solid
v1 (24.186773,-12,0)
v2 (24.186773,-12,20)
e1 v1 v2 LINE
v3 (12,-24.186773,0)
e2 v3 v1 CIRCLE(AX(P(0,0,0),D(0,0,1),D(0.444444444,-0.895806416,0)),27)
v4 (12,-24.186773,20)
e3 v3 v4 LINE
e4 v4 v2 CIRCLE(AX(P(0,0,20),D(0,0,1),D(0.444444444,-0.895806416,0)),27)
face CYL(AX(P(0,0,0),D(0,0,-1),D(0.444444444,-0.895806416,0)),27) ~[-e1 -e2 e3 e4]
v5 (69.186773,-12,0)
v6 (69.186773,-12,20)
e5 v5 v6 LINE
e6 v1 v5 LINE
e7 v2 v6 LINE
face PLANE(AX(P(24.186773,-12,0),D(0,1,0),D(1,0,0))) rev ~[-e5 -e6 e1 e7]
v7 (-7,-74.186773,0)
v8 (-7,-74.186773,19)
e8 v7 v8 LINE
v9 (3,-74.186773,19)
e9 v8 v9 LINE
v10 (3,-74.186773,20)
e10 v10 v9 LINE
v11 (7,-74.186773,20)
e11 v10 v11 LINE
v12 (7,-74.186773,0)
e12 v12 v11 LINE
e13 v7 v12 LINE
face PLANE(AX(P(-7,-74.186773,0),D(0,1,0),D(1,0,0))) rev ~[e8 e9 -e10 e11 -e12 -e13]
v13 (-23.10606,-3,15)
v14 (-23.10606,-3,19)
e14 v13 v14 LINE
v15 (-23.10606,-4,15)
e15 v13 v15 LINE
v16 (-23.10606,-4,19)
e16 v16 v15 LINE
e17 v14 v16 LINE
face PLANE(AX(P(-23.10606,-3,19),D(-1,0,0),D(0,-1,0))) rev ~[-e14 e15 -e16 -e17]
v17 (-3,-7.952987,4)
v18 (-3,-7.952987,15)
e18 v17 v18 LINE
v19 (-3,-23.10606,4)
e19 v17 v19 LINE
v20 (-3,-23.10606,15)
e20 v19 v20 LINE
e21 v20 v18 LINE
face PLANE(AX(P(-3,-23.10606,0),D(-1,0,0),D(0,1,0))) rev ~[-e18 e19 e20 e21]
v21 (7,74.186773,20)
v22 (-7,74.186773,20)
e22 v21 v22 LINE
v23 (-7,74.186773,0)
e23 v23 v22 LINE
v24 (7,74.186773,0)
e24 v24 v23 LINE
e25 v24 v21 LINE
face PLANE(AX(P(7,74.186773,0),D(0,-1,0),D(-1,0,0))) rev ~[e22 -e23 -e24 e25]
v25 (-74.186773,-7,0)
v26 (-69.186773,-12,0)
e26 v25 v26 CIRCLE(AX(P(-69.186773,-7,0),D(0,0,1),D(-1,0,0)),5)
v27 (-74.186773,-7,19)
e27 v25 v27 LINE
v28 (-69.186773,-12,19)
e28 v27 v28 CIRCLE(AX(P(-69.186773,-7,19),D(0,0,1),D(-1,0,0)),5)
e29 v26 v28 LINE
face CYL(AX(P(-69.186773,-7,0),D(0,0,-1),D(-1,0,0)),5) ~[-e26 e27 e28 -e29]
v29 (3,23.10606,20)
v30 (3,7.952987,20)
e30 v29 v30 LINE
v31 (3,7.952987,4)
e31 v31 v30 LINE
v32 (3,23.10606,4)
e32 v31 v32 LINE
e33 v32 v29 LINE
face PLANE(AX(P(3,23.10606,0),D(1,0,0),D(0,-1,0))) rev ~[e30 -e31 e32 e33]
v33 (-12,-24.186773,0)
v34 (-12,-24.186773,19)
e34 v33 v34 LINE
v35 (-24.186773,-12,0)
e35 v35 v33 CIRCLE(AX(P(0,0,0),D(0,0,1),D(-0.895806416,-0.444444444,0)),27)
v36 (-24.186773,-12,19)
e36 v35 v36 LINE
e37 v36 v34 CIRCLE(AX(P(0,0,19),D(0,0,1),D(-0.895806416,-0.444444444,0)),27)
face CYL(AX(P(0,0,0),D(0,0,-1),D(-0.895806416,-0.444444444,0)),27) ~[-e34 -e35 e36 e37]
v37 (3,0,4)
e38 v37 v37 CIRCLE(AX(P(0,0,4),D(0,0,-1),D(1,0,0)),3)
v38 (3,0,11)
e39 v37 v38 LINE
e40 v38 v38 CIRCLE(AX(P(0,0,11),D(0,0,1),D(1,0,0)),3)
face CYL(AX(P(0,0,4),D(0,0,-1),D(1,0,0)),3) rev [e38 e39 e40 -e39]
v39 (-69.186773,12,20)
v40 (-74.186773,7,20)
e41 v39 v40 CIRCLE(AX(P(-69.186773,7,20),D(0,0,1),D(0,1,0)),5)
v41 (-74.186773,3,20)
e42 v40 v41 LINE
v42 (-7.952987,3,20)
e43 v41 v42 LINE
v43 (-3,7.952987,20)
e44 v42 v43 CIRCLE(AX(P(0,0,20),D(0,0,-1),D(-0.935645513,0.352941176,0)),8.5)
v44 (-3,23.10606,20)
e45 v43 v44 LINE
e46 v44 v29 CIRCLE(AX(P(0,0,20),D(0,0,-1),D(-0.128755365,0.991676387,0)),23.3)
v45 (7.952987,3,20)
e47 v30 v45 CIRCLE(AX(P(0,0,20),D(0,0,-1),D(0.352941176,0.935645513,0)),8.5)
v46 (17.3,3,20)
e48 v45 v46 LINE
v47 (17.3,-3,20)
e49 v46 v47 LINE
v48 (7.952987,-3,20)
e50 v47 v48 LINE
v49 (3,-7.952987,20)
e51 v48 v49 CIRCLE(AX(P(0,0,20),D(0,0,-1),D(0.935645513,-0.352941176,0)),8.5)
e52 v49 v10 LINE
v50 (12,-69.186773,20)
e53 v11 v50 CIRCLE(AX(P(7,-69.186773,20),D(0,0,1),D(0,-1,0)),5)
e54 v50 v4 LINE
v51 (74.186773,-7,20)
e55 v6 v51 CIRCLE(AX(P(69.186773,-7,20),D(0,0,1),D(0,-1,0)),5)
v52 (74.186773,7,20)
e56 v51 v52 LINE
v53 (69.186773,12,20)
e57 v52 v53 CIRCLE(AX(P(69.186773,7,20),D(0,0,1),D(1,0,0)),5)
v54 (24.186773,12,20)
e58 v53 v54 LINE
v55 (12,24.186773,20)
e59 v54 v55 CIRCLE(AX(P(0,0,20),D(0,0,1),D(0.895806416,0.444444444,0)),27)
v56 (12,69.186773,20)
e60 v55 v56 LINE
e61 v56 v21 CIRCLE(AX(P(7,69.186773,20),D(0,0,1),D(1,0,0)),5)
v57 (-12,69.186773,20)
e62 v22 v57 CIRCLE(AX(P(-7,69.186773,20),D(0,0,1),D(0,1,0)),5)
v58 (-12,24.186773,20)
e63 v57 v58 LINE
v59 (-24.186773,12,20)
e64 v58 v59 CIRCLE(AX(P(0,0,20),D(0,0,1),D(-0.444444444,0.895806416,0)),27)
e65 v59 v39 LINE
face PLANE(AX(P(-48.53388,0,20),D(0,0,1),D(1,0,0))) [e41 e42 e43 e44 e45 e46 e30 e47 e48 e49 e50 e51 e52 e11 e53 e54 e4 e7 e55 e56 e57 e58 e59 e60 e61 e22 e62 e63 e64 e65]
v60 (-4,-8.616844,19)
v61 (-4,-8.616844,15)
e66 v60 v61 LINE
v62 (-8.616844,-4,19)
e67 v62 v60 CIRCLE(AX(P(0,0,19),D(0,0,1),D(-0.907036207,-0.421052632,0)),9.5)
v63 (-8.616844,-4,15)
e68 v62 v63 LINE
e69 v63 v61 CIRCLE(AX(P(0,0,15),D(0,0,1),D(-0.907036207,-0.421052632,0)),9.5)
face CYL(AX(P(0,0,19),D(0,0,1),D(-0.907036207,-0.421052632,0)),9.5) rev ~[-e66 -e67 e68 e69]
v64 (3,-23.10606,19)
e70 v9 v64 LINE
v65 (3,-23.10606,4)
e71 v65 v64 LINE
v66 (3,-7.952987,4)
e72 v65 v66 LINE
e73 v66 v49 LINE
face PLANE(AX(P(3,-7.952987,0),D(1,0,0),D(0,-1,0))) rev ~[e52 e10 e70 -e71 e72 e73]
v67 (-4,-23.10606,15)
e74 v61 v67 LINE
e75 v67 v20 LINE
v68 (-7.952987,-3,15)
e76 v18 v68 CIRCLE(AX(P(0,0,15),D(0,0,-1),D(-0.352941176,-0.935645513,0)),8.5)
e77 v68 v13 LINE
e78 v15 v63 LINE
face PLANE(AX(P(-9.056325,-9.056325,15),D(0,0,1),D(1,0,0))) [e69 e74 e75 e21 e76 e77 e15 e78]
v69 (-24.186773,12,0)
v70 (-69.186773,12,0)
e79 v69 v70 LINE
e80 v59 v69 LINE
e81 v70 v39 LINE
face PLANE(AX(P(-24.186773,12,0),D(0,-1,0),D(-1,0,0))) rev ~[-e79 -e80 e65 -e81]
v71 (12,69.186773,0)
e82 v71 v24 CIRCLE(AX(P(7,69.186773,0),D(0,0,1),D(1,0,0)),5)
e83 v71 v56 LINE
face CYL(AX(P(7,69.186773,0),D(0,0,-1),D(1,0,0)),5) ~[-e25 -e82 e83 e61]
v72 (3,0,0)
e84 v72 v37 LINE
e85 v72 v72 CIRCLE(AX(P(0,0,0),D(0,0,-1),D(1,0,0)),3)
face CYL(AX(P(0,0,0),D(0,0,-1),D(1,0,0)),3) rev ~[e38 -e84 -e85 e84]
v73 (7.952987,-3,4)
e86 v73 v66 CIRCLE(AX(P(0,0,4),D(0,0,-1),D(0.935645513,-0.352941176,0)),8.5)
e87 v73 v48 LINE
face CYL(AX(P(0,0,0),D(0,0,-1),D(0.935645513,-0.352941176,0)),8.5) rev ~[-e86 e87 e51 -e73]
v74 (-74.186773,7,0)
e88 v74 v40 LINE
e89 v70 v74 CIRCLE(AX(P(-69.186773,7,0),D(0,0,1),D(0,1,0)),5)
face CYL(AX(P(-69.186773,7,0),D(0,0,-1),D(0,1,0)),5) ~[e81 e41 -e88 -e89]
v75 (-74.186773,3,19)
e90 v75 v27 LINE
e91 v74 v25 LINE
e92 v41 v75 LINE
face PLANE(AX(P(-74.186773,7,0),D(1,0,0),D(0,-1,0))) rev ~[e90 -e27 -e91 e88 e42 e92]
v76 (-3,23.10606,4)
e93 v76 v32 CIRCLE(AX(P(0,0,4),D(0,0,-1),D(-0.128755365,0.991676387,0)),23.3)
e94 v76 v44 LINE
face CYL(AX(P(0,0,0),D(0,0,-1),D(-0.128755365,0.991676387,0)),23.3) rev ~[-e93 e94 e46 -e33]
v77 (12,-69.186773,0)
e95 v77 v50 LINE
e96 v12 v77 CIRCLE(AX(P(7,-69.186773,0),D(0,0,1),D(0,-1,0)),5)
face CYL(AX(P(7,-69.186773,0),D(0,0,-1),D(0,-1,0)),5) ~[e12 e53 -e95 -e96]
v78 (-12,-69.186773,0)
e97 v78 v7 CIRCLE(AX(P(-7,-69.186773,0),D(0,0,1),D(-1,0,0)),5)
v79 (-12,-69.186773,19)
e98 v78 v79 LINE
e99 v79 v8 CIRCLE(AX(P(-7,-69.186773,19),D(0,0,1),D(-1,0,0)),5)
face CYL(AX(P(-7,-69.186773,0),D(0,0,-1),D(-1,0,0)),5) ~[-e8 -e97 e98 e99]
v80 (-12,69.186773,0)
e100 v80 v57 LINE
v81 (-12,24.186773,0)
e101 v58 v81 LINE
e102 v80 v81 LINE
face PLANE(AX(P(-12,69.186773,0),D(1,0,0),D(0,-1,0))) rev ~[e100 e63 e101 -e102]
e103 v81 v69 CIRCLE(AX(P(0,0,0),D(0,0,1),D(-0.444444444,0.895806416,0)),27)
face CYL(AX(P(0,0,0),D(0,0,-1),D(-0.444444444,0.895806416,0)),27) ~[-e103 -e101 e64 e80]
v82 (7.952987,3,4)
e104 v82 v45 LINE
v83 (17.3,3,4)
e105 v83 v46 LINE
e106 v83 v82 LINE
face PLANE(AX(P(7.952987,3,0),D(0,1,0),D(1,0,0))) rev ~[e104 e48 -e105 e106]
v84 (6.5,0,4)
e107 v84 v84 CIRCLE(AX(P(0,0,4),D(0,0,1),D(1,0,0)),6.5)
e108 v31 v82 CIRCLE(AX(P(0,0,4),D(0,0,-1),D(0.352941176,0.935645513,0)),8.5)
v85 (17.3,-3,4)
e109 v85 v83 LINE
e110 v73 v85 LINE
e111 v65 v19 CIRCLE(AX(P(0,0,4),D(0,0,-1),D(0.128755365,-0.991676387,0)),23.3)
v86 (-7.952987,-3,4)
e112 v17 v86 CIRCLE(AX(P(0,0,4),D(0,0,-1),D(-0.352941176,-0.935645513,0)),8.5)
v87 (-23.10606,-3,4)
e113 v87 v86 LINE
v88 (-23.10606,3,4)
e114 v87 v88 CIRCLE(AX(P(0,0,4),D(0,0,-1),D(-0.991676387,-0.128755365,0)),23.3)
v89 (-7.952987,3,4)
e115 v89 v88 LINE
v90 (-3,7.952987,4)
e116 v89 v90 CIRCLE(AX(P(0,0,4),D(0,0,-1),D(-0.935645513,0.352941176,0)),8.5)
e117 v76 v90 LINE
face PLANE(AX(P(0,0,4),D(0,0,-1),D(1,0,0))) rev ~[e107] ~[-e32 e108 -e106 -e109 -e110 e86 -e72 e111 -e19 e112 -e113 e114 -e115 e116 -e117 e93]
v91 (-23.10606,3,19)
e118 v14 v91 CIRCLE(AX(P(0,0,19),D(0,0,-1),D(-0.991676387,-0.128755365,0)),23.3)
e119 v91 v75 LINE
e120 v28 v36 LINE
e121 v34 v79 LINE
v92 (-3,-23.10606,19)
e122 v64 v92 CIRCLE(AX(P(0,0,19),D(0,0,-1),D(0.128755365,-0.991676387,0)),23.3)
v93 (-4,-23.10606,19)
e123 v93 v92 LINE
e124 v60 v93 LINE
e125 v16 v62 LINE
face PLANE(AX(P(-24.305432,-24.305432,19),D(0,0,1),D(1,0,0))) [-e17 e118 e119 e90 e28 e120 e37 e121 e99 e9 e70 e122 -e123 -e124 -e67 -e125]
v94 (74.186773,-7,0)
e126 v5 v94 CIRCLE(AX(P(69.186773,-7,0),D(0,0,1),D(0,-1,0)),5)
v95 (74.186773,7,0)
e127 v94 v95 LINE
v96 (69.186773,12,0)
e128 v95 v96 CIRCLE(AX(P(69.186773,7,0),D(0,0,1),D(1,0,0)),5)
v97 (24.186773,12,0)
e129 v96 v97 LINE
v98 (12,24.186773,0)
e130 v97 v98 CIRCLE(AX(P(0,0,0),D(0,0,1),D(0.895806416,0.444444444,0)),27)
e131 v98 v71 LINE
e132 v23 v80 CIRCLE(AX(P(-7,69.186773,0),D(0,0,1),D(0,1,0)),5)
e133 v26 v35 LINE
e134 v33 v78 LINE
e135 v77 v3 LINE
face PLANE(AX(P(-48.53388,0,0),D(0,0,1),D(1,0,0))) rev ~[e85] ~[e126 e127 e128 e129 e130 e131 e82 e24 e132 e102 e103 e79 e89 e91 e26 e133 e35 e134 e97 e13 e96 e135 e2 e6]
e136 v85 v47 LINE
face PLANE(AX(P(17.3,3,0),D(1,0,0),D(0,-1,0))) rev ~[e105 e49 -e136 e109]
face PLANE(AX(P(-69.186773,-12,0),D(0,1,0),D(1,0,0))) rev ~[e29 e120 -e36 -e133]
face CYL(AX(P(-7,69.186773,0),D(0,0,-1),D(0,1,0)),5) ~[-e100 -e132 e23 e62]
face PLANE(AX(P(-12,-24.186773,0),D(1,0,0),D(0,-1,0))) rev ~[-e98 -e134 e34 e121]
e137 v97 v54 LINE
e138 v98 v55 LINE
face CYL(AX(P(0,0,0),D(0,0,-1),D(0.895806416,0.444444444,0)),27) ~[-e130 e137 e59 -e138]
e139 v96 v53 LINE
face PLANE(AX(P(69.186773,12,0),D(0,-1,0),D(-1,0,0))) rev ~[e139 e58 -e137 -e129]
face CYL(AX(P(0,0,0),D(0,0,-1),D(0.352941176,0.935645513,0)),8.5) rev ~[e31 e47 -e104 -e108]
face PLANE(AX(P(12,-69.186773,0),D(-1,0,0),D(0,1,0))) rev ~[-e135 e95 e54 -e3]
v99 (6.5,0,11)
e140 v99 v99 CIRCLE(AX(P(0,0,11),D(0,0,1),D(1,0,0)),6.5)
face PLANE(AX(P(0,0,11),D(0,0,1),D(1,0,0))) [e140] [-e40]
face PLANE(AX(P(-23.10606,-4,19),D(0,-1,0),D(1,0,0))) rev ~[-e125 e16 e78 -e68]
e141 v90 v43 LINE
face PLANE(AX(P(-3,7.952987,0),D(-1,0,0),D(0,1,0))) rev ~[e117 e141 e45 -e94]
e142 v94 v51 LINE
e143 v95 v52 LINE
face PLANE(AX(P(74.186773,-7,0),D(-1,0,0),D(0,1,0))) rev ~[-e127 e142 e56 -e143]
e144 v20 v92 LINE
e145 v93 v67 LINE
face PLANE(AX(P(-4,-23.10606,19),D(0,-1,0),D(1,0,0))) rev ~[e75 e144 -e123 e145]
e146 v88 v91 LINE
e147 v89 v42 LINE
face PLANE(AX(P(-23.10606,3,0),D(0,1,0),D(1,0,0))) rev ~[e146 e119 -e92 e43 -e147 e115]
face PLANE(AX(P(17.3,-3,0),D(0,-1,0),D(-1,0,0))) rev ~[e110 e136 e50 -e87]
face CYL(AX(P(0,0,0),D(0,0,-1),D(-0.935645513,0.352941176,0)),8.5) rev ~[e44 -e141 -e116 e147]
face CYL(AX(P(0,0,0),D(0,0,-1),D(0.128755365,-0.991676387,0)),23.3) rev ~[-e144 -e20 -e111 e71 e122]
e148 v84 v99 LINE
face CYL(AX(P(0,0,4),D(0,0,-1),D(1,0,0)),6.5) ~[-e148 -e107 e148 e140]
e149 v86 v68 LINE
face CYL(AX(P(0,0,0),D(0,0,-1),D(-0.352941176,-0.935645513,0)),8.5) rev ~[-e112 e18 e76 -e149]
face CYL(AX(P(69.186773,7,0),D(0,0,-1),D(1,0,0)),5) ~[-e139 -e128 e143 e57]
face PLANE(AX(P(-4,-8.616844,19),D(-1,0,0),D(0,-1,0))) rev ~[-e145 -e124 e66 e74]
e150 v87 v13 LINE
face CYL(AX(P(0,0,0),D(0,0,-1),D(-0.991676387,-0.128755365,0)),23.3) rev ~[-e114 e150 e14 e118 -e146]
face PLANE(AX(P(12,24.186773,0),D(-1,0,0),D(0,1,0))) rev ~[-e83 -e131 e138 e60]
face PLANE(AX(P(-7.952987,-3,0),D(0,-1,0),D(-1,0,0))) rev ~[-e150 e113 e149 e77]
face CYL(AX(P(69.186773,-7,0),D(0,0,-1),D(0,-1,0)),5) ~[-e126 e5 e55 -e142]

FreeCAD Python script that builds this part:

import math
import FreeCAD as App
import Part
import Sketcher
from FreeCAD import Vector

doc = App.newDocument("Part")
body = doc.addObject("PartDesign::Body", "Body")

sketch1 = body.newObject("Sketcher::SketchObject", "Sketch")
sketch1.AttachmentSupport = (doc.getObject("XY_Plane"), [""])
sketch1.MapMode = "FlatFace"
sketch1.addGeometry([
    Part.LineSegment(Vector(-24, 12, 0), Vector(-69, 12, 0)),
    Part.ArcOfCircle(Part.Circle(Vector(-69, 7, 0), Vector(0, 0, 1), 5), math.radians(90), math.radians(180)),
    Part.LineSegment(Vector(-74, 7, 0), Vector(-74, -7, 0)),
    Part.ArcOfCircle(Part.Circle(Vector(-69, -7, 0), Vector(0, 0, 1), 5), math.radians(180), math.radians(270)),
    Part.LineSegment(Vector(-69, -12, 0), Vector(-24, -12, 0)),
    Part.ArcOfCircle(Part.Circle(Vector(0, 0, 0), Vector(0, 0, 1), 27), math.radians(-154), math.radians(-116)),
    Part.LineSegment(Vector(-12, -24, 0), Vector(-12, -69, 0)),
    Part.ArcOfCircle(Part.Circle(Vector(-7, -69, 0), Vector(0, 0, 1), 5), math.radians(180), math.radians(270)),
    Part.LineSegment(Vector(-7, -74, 0), Vector(7, -74, 0)),
    Part.ArcOfCircle(Part.Circle(Vector(7, -69, 0), Vector(0, 0, 1), 5), math.radians(-90), math.radians(0)),
    Part.LineSegment(Vector(12, -69, 0), Vector(12, -24, 0)),
    Part.ArcOfCircle(Part.Circle(Vector(0, 0, 0), Vector(0, 0, 1), 27), math.radians(-64), math.radians(-26)),
    Part.LineSegment(Vector(24, -12, 0), Vector(69, -12, 0)),
    Part.ArcOfCircle(Part.Circle(Vector(69, -7, 0), Vector(0, 0, 1), 5), math.radians(-90), math.radians(0)),
    Part.LineSegment(Vector(74, -7, 0), Vector(74, 7, 0)),
    Part.ArcOfCircle(Part.Circle(Vector(69, 7, 0), Vector(0, 0, 1), 5), math.radians(0), math.radians(90)),
    Part.LineSegment(Vector(69, 12, 0), Vector(24, 12, 0)),
    Part.ArcOfCircle(Part.Circle(Vector(0, 0, 0), Vector(0, 0, 1), 27), math.radians(26), math.radians(64)),
    Part.LineSegment(Vector(12, 24, 0), Vector(12, 69, 0)),
    Part.ArcOfCircle(Part.Circle(Vector(7, 69, 0), Vector(0, 0, 1), 5), math.radians(0), math.radians(90)),
    Part.LineSegment(Vector(7, 74, 0), Vector(-7, 74, 0)),
    Part.ArcOfCircle(Part.Circle(Vector(-7, 69, 0), Vector(0, 0, 1), 5), math.radians(90), math.radians(180)),
    Part.LineSegment(Vector(-12, 69, 0), Vector(-12, 24, 0)),
    Part.ArcOfCircle(Part.Circle(Vector(0, 0, 0), Vector(0, 0, 1), 27), math.radians(116), math.radians(154)),
    Part.ArcOfCircle(Part.Circle(Vector(0, 0, 0), Vector(0, 0, 1), 23), math.radians(82.6), math.radians(97.4)),
    Part.LineSegment(Vector(3, 23, 0), Vector(3, 8, 0)),
    Part.ArcOfCircle(Part.Circle(Vector(0, 0, 0), Vector(0, 0, 1), 8), math.radians(21), math.radians(69)),
    Part.LineSegment(Vector(8, 3, 0), Vector(17, 3, 0)),
    Part.LineSegment(Vector(17, 3, 0), Vector(17, -3, 0)),
    Part.LineSegment(Vector(17, -3, 0), Vector(8, -3, 0)),
    Part.ArcOfCircle(Part.Circle(Vector(0, 0, 0), Vector(0, 0, 1), 8), math.radians(-69), math.radians(-21)),
    Part.LineSegment(Vector(3, -8, 0), Vector(3, -23, 0)),
    Part.ArcOfCircle(Part.Circle(Vector(0, 0, 0), Vector(0, 0, 1), 23), math.radians(-97.4), math.radians(-82.6)),
    Part.LineSegment(Vector(-3, -23, 0), Vector(-3, -8, 0)),
    Part.ArcOfCircle(Part.Circle(Vector(0, 0, 0), Vector(0, 0, 1), 8), math.radians(-159), math.radians(-111)),
    Part.LineSegment(Vector(-8, -3, 0), Vector(-23, -3, 0)),
    Part.ArcOfCircle(Part.Circle(Vector(0, 0, 0), Vector(0, 0, 1), 23), math.radians(172.6), math.radians(187.4)),
    Part.LineSegment(Vector(-23, 3, 0), Vector(-8, 3, 0)),
    Part.ArcOfCircle(Part.Circle(Vector(0, 0, 0), Vector(0, 0, 1), 8), math.radians(111), math.radians(159)),
    Part.LineSegment(Vector(-3, 8, 0), Vector(-3, 23, 0)),
], False)
sketch1.addConstraint([
    Sketcher.Constraint("Tangent", 0, 2, 1, 1),
    Sketcher.Constraint("Tangent", 1, 2, 2, 1),
    Sketcher.Constraint("Tangent", 2, 2, 3, 1),
    Sketcher.Constraint("Tangent", 3, 2, 4, 1),
    Sketcher.Constraint("Coincident", 4, 2, 5, 1),
    Sketcher.Constraint("Coincident", 5, 2, 6, 1),
    Sketcher.Constraint("Tangent", 6, 2, 7, 1),
    Sketcher.Constraint("Tangent", 7, 2, 8, 1),
    Sketcher.Constraint("Tangent", 8, 2, 9, 1),
    Sketcher.Constraint("Tangent", 9, 2, 10, 1),
    Sketcher.Constraint("Coincident", 10, 2, 11, 1),
    Sketcher.Constraint("Coincident", 11, 2, 12, 1),
    Sketcher.Constraint("Tangent", 12, 2, 13, 1),
    Sketcher.Constraint("Tangent", 13, 2, 14, 1),
    Sketcher.Constraint("Tangent", 14, 2, 15, 1),
    Sketcher.Constraint("Tangent", 15, 2, 16, 1),
    Sketcher.Constraint("Coincident", 16, 2, 17, 1),
    Sketcher.Constraint("Coincident", 17, 2, 18, 1),
    Sketcher.Constraint("Tangent", 18, 2, 19, 1),
    Sketcher.Constraint("Tangent", 19, 2, 20, 1),
    Sketcher.Constraint("Tangent", 20, 2, 21, 1),
    Sketcher.Constraint("Tangent", 21, 2, 22, 1),
    Sketcher.Constraint("Coincident", 22, 2, 23, 1),
    Sketcher.Constraint("Coincident", 23, 2, 0, 1),
    Sketcher.Constraint("Coincident", 24, 1, 25, 1),
    Sketcher.Constraint("Coincident", 25, 2, 26, 2),
    Sketcher.Constraint("Coincident", 26, 1, 27, 1),
    Sketcher.Constraint("Coincident", 27, 2, 28, 1),
    Sketcher.Constraint("Coincident", 28, 2, 29, 1),
    Sketcher.Constraint("Coincident", 29, 2, 30, 2),
    Sketcher.Constraint("Coincident", 30, 1, 31, 1),
    Sketcher.Constraint("Coincident", 31, 2, 32, 2),
    Sketcher.Constraint("Coincident", 32, 1, 33, 1),
    Sketcher.Constraint("Coincident", 33, 2, 34, 2),
    Sketcher.Constraint("Coincident", 34, 1, 35, 1),
    Sketcher.Constraint("Coincident", 35, 2, 36, 2),
    Sketcher.Constraint("Coincident", 36, 1, 37, 1),
    Sketcher.Constraint("Coincident", 37, 2, 38, 2),
    Sketcher.Constraint("Coincident", 38, 1, 39, 1),
    Sketcher.Constraint("Coincident", 39, 2, 24, 2),
    Sketcher.Constraint("Horizontal", 0),
    Sketcher.Constraint("Vertical", 2),
    Sketcher.Constraint("Horizontal", 4),
    Sketcher.Constraint("Vertical", 6),
    Sketcher.Constraint("Horizontal", 8),
    Sketcher.Constraint("Vertical", 10),
    Sketcher.Constraint("Horizontal", 12),
    Sketcher.Constraint("Vertical", 14),
    Sketcher.Constraint("Horizontal", 16),
    Sketcher.Constraint("Vertical", 18),
    Sketcher.Constraint("Horizontal", 20),
    Sketcher.Constraint("Vertical", 22),
    Sketcher.Constraint("Vertical", 25),
    Sketcher.Constraint("Horizontal", 27),
    Sketcher.Constraint("Vertical", 28),
    Sketcher.Constraint("Horizontal", 29),
    Sketcher.Constraint("Vertical", 31),
    Sketcher.Constraint("Vertical", 33),
    Sketcher.Constraint("Horizontal", 35),
    Sketcher.Constraint("Horizontal", 37),
    Sketcher.Constraint("Vertical", 39),
    Sketcher.Constraint("Coincident", 5, 3, -1, 1),
    Sketcher.Constraint("Coincident", 11, 3, -1, 1),
    Sketcher.Constraint("Coincident", 17, 3, -1, 1),
    Sketcher.Constraint("Coincident", 23, 3, -1, 1),
    Sketcher.Constraint("Coincident", 24, 3, -1, 1),
    Sketcher.Constraint("Coincident", 26, 3, -1, 1),
    Sketcher.Constraint("Coincident", 30, 3, -1, 1),
    Sketcher.Constraint("Coincident", 32, 3, -1, 1),
    Sketcher.Constraint("Coincident", 34, 3, -1, 1),
    Sketcher.Constraint("Coincident", 36, 3, -1, 1),
    Sketcher.Constraint("Coincident", 38, 3, -1, 1),
    Sketcher.Constraint("Equal", 1, 3),
    Sketcher.Constraint("Equal", 3, 7),
    Sketcher.Constraint("Equal", 7, 9),
    Sketcher.Constraint("Equal", 5, 11),
    Sketcher.Constraint("Equal", 9, 13),
    Sketcher.Constraint("Equal", 13, 15),
    Sketcher.Constraint("Equal", 11, 17),
    Sketcher.Constraint("Equal", 15, 19),
    Sketcher.Constraint("Equal", 19, 21),
    Sketcher.Constraint("Equal", 17, 23),
    Sketcher.Constraint("Equal", 26, 30),
    Sketcher.Constraint("Equal", 24, 32),
    Sketcher.Constraint("Equal", 30, 34),
    Sketcher.Constraint("Equal", 32, 36),
    Sketcher.Constraint("Equal", 34, 38),
    Sketcher.Constraint("Symmetric", 1, 3, 13, 3, -1, 1),
    Sketcher.Constraint("Symmetric", 7, 3, 19, 3, -1, 1),
    Sketcher.Constraint("Horizontal", 3, 3, 13, 3),
    Sketcher.Constraint("Horizontal", 1, 3, 15, 3),
    Sketcher.Constraint("Horizontal", 5, 2, 10, 2),
    Sketcher.Constraint("Horizontal", 17, 2, 22, 2),
    Sketcher.Constraint("Horizontal", 31, 2, 32, 1),
    Sketcher.Constraint("Horizontal", 29, 2, 34, 1),
    Sketcher.Constraint("Horizontal", 27, 2, 36, 1),
    Sketcher.Constraint("Horizontal", 25, 2, 38, 1),
    Sketcher.Constraint("Vertical", 26, 1, 29, 2),
    Sketcher.Constraint("Vertical", 25, 2, 30, 1),
    Sketcher.Constraint("Equal", 20, 2),
    Sketcher.Constraint("Equal", 16, 6),
    Sketcher.Constraint("Equal", 37, 25),
    Sketcher.Constraint("Radius", 1, 5.0),
    Sketcher.Constraint("Radius", 5, 27.0),
    Sketcher.Constraint("Radius", 24, 23.3),
    Sketcher.Constraint("Radius", 26, 8.5),
    Sketcher.Constraint("DistanceX", 0, 2, 0, 1, 45.0),
    Sketcher.Constraint("DistanceX", 8, 1, 8, 2, 14.0),
    Sketcher.Constraint("DistanceY", 28, 2, 28, 1, 6.0),
    Sketcher.Constraint("DistanceX", -1, 1, 27, 2, 17.3),
])
pad1 = body.newObject("PartDesign::Pad", "Pad")
pad1.Profile = sketch1
pad1.Length = 20

sketch2 = body.newObject("Sketcher::SketchObject", "Sketch001")
sketch2.AttachmentSupport = (doc.getObject("XY_Plane"), [""])
sketch2.MapMode = "FlatFace"
sketch2.AttachmentOffset = App.Placement(Vector(0, 0, 20), App.Rotation())
sketch2.addGeometry([
    Part.LineSegment(Vector(3, -74, 0), Vector(3, -23, 0)),
    Part.ArcOfCircle(Part.Circle(Vector(0, 0, 0), Vector(0, 0, 1), 23), math.radians(-97.4), math.radians(-82.6)),
    Part.LineSegment(Vector(-3, -23, 0), Vector(-3, -8, 0)),
    Part.ArcOfCircle(Part.Circle(Vector(0, 0, 0), Vector(0, 0, 1), 8), math.radians(-159), math.radians(-111)),
    Part.LineSegment(Vector(-8, -3, 0), Vector(-23, -3, 0)),
    Part.ArcOfCircle(Part.Circle(Vector(0, 0, 0), Vector(0, 0, 1), 23), math.radians(172.6), math.radians(187.4)),
    Part.LineSegment(Vector(-23, 3, 0), Vector(-74, 3, 0)),
    Part.LineSegment(Vector(-74, 3, 0), Vector(-74, -7, 0)),
    Part.ArcOfCircle(Part.Circle(Vector(-69, -7, 0), Vector(0, 0, 1), 5), math.radians(180), math.radians(270)),
    Part.LineSegment(Vector(-69, -12, 0), Vector(-24, -12, 0)),
    Part.ArcOfCircle(Part.Circle(Vector(0, 0, 0), Vector(0, 0, 1), 27), math.radians(-154), math.radians(-116)),
    Part.LineSegment(Vector(-12, -24, 0), Vector(-12, -69, 0)),
    Part.ArcOfCircle(Part.Circle(Vector(-7, -69, 0), Vector(0, 0, 1), 5), math.radians(180), math.radians(270)),
    Part.LineSegment(Vector(-7, -74, 0), Vector(3, -74, 0)),
], False)
sketch2.addConstraint([
    Sketcher.Constraint("Coincident", 0, 2, 1, 2),
    Sketcher.Constraint("Coincident", 1, 1, 2, 1),
    Sketcher.Constraint("Coincident", 2, 2, 3, 2),
    Sketcher.Constraint("Coincident", 3, 1, 4, 1),
    Sketcher.Constraint("Coincident", 4, 2, 5, 2),
    Sketcher.Constraint("Coincident", 5, 1, 6, 1),
    Sketcher.Constraint("Coincident", 6, 2, 7, 1),
    Sketcher.Constraint("Tangent", 7, 2, 8, 1),
    Sketcher.Constraint("Tangent", 8, 2, 9, 1),
    Sketcher.Constraint("Coincident", 9, 2, 10, 1),
    Sketcher.Constraint("Coincident", 10, 2, 11, 1),
    Sketcher.Constraint("Tangent", 11, 2, 12, 1),
    Sketcher.Constraint("Tangent", 12, 2, 13, 1),
    Sketcher.Constraint("Coincident", 13, 2, 0, 1),
    Sketcher.Constraint("Vertical", 0),
    Sketcher.Constraint("Vertical", 2),
    Sketcher.Constraint("Horizontal", 4),
    Sketcher.Constraint("Horizontal", 6),
    Sketcher.Constraint("Vertical", 7),
    Sketcher.Constraint("Horizontal", 9),
    Sketcher.Constraint("Vertical", 11),
    Sketcher.Constraint("Horizontal", 13),
    Sketcher.Constraint("Coincident", 1, 3, -1, 1),
    Sketcher.Constraint("Coincident", 3, 3, -1, 1),
    Sketcher.Constraint("Coincident", 5, 3, -1, 1),
    Sketcher.Constraint("Coincident", 10, 3, -1, 1),
    Sketcher.Constraint("Equal", 1, 5),
    Sketcher.Constraint("Equal", 8, 12),
    Sketcher.Constraint("Horizontal", 0, 2, 1, 1),
    Sketcher.Constraint("Vertical", 4, 2, 5, 1),
    Sketcher.Constraint("Equal", 6, 0),
    Sketcher.Constraint("Equal", 4, 2),
    Sketcher.Constraint("Equal", 13, 7),
    Sketcher.Constraint("Radius", 8, 5.0),
    Sketcher.Constraint("Radius", 10, 27.0),
    Sketcher.Constraint("Radius", 1, 23.3),
    Sketcher.Constraint("Radius", 3, 8.5),
    Sketcher.Constraint("DistanceX", 9, 1, 9, 2, 45.0),
    Sketcher.Constraint("DistanceX", 13, 1, 13, 2, 10.0),
    Sketcher.Constraint("DistanceY", 8, 3, -1, 1, 7.0),
])
pocket1 = body.newObject("PartDesign::Pocket", "Pocket")
pocket1.Profile = sketch2
pocket1.Length = 1

sketch3 = body.newObject("Sketcher::SketchObject", "Sketch002")
sketch3.AttachmentSupport = (doc.getObject("XY_Plane"), [""])
sketch3.MapMode = "FlatFace"
sketch3.AttachmentOffset = App.Placement(Vector(0, 0, 19), App.Rotation())
sketch3.addGeometry([
    Part.ArcOfCircle(Part.Circle(Vector(0, 0, 0), Vector(0, 0, 1), 9.5), math.radians(-155), math.radians(-115)),
    Part.LineSegment(Vector(-4, -8.6, 0), Vector(-4, -23.1, 0)),
    Part.LineSegment(Vector(-4, -23.1, 0), Vector(-3, -23.1, 0)),
    Part.LineSegment(Vector(-3, -23.1, 0), Vector(-3, -8, 0)),
    Part.ArcOfCircle(Part.Circle(Vector(0, 0, 0), Vector(0, 0, 1), 8.5), math.radians(-159), math.radians(-111)),
    Part.LineSegment(Vector(-8, -3, 0), Vector(-23.1, -3, 0)),
    Part.LineSegment(Vector(-23.1, -3, 0), Vector(-23.1, -4, 0)),
    Part.LineSegment(Vector(-23.1, -4, 0), Vector(-8.6, -4, 0)),
], False)
sketch3.addConstraint([
    Sketcher.Constraint("Coincident", 0, 2, 1, 1),
    Sketcher.Constraint("Coincident", 1, 2, 2, 1),
    Sketcher.Constraint("Coincident", 2, 2, 3, 1),
    Sketcher.Constraint("Coincident", 3, 2, 4, 2),
    Sketcher.Constraint("Coincident", 4, 1, 5, 1),
    Sketcher.Constraint("Coincident", 5, 2, 6, 1),
    Sketcher.Constraint("Coincident", 6, 2, 7, 1),
    Sketcher.Constraint("Coincident", 7, 2, 0, 1),
    Sketcher.Constraint("Vertical", 1),
    Sketcher.Constraint("Horizontal", 2),
    Sketcher.Constraint("Vertical", 3),
    Sketcher.Constraint("Horizontal", 5),
    Sketcher.Constraint("Vertical", 6),
    Sketcher.Constraint("Horizontal", 7),
    Sketcher.Constraint("Coincident", 0, 3, -1, 1),
    Sketcher.Constraint("Coincident", 4, 3, -1, 1),
    Sketcher.Constraint("Equal", 7, 1),
    Sketcher.Constraint("Equal", 5, 3),
    Sketcher.Constraint("Equal", 2, 6),
    Sketcher.Constraint("Radius", 0, 9.5),
    Sketcher.Constraint("Radius", 4, 8.5),
    Sketcher.Constraint("DistanceX", 2, 1, 2, 2, 1.0),
    Sketcher.Constraint("DistanceX", 0, 2, -1, 1, 4.0),
    Sketcher.Constraint("DistanceX", 5, 2, 5, 1, 15.153073),
])
pocket2 = body.newObject("PartDesign::Pocket", "Pocket001")
pocket2.Profile = sketch3
pocket2.Length = 4

sketch4 = body.newObject("Sketcher::SketchObject", "Sketch003")
sketch4.AttachmentSupport = (doc.getObject("XY_Plane"), [""])
sketch4.MapMode = "FlatFace"
sketch4.addGeometry([
    Part.ArcOfCircle(Part.Circle(Vector(-69.2, 7, 0), Vector(0, 0, 1), 5), math.radians(90), math.radians(180)),
    Part.LineSegment(Vector(-69.2, 12, 0), Vector(-24.2, 12, 0)),
    Part.ArcOfCircle(Part.Circle(Vector(0, 0, 0), Vector(0, 0, 1), 27), math.radians(116), math.radians(154)),
    Part.LineSegment(Vector(-12, 24.2, 0), Vector(-12, 69.2, 0)),
    Part.ArcOfCircle(Part.Circle(Vector(-7, 69.2, 0), Vector(0, 0, 1), 5), math.radians(90), math.radians(180)),
    Part.LineSegment(Vector(-7, 74.2, 0), Vector(7, 74.2, 0)),
    Part.ArcOfCircle(Part.Circle(Vector(7, 69.2, 0), Vector(0, 0, 1), 5), math.radians(0), math.radians(90)),
    Part.LineSegment(Vector(12, 69.2, 0), Vector(12, 24.2, 0)),
    Part.ArcOfCircle(Part.Circle(Vector(0, 0, 0), Vector(0, 0, 1), 27), math.radians(26), math.radians(64)),
    Part.LineSegment(Vector(24.2, 12, 0), Vector(69.2, 12, 0)),
    Part.ArcOfCircle(Part.Circle(Vector(69.2, 7, 0), Vector(0, 0, 1), 5), math.radians(0), math.radians(90)),
    Part.LineSegment(Vector(74.2, 7, 0), Vector(74.2, -7, 0)),
    Part.ArcOfCircle(Part.Circle(Vector(69.2, -7, 0), Vector(0, 0, 1), 5), math.radians(-90), math.radians(0)),
    Part.LineSegment(Vector(69.2, -12, 0), Vector(24.2, -12, 0)),
    Part.ArcOfCircle(Part.Circle(Vector(0, 0, 0), Vector(0, 0, 1), 27), math.radians(-64), math.radians(-26)),
    Part.LineSegment(Vector(12, -24.2, 0), Vector(12, -69.2, 0)),
    Part.ArcOfCircle(Part.Circle(Vector(7, -69.2, 0), Vector(0, 0, 1), 5), math.radians(-90), math.radians(0)),
    Part.LineSegment(Vector(7, -74.2, 0), Vector(-7, -74.2, 0)),
    Part.ArcOfCircle(Part.Circle(Vector(-7, -69.2, 0), Vector(0, 0, 1), 5), math.radians(180), math.radians(270)),
    Part.LineSegment(Vector(-12, -69.2, 0), Vector(-12, -24.2, 0)),
    Part.ArcOfCircle(Part.Circle(Vector(0, 0, 0), Vector(0, 0, 1), 27), math.radians(-154), math.radians(-116)),
    Part.LineSegment(Vector(-24.2, -12, 0), Vector(-69.2, -12, 0)),
    Part.ArcOfCircle(Part.Circle(Vector(-69.2, -7, 0), Vector(0, 0, 1), 5), math.radians(180), math.radians(270)),
    Part.LineSegment(Vector(-74.2, -7, 0), Vector(-74.2, 7, 0)),
    Part.Circle(Vector(0, 0, 0), Vector(0, 0, 1), 3),
], False)
sketch4.addConstraint([
    Sketcher.Constraint("Tangent", 0, 1, 1, 1),
    Sketcher.Constraint("Coincident", 1, 2, 2, 2),
    Sketcher.Constraint("Coincident", 2, 1, 3, 1),
    Sketcher.Constraint("Tangent", 3, 2, 4, 2),
    Sketcher.Constraint("Tangent", 4, 1, 5, 1),
    Sketcher.Constraint("Tangent", 5, 2, 6, 2),
    Sketcher.Constraint("Tangent", 6, 1, 7, 1),
    Sketcher.Constraint("Coincident", 7, 2, 8, 2),
    Sketcher.Constraint("Coincident", 8, 1, 9, 1),
    Sketcher.Constraint("Tangent", 9, 2, 10, 2),
    Sketcher.Constraint("Tangent", 10, 1, 11, 1),
    Sketcher.Constraint("Tangent", 11, 2, 12, 2),
    Sketcher.Constraint("Tangent", 12, 1, 13, 1),
    Sketcher.Constraint("Coincident", 13, 2, 14, 2),
    Sketcher.Constraint("Coincident", 14, 1, 15, 1),
    Sketcher.Constraint("Tangent", 15, 2, 16, 2),
    Sketcher.Constraint("Tangent", 16, 1, 17, 1),
    Sketcher.Constraint("Tangent", 17, 2, 18, 2),
    Sketcher.Constraint("Tangent", 18, 1, 19, 1),
    Sketcher.Constraint("Coincident", 19, 2, 20, 2),
    Sketcher.Constraint("Coincident", 20, 1, 21, 1),
    Sketcher.Constraint("Tangent", 21, 2, 22, 2),
    Sketcher.Constraint("Tangent", 22, 1, 23, 1),
    Sketcher.Constraint("Tangent", 23, 2, 0, 2),
    Sketcher.Constraint("Horizontal", 1),
    Sketcher.Constraint("Vertical", 3),
    Sketcher.Constraint("Horizontal", 5),
    Sketcher.Constraint("Vertical", 7),
    Sketcher.Constraint("Horizontal", 9),
    Sketcher.Constraint("Vertical", 11),
    Sketcher.Constraint("Horizontal", 13),
    Sketcher.Constraint("Vertical", 15),
    Sketcher.Constraint("Horizontal", 17),
    Sketcher.Constraint("Vertical", 19),
    Sketcher.Constraint("Horizontal", 21),
    Sketcher.Constraint("Vertical", 23),
    Sketcher.Constraint("Coincident", 2, 3, -1, 1),
    Sketcher.Constraint("Coincident", 8, 3, -1, 1),
    Sketcher.Constraint("Coincident", 14, 3, -1, 1),
    Sketcher.Constraint("Coincident", 20, 3, -1, 1),
    Sketcher.Constraint("Coincident", 24, 3, -1, 1),
    Sketcher.Constraint("Equal", 0, 4),
    Sketcher.Constraint("Equal", 4, 6),
    Sketcher.Constraint("Equal", 2, 8),
    Sketcher.Constraint("Equal", 6, 10),
    Sketcher.Constraint("Equal", 10, 12),
    Sketcher.Constraint("Equal", 8, 14),
    Sketcher.Constraint("Equal", 12, 16),
    Sketcher.Constraint("Equal", 16, 18),
    Sketcher.Constraint("Equal", 14, 20),
    Sketcher.Constraint("Equal", 18, 22),
    Sketcher.Constraint("Symmetric", 0, 3, 12, 3, -1, 1),
    Sketcher.Constraint("Symmetric", 4, 3, 16, 3, -1, 1),
    Sketcher.Constraint("Horizontal", 0, 3, 10, 3),
    Sketcher.Constraint("Horizontal", 12, 3, 22, 3),
    Sketcher.Constraint("Horizontal", 2, 1, 7, 2),
    Sketcher.Constraint("Horizontal", 14, 1, 19, 2),
    Sketcher.Constraint("Equal", 21, 3),
    Sketcher.Constraint("Equal", 17, 11),
    Sketcher.Constraint("Diameter", 24, 6.0),
    Sketcher.Constraint("Radius", 0, 5.0),
    Sketcher.Constraint("Radius", 2, 27.0),
    Sketcher.Constraint("DistanceX", 1, 1, 1, 2, 45.0),
    Sketcher.Constraint("DistanceX", 5, 1, 5, 2, 14.0),
])
pad2 = body.newObject("PartDesign::Pad", "Pad001")
pad2.Profile = sketch4
pad2.Length = 4

sketch5 = body.newObject("Sketcher::SketchObject", "Sketch004")
sketch5.AttachmentSupport = (doc.getObject("XY_Plane"), [""])
sketch5.MapMode = "FlatFace"
sketch5.AttachmentOffset = App.Placement(Vector(0, 0, 4), App.Rotation())
sketch5.addGeometry([
    Part.Circle(Vector(0, 0, 0), Vector(0, 0, 1), 6.5),
    Part.Circle(Vector(0, 0, 0), Vector(0, 0, 1), 3),
], False)
sketch5.addConstraint([
    Sketcher.Constraint("Coincident", 0, 3, -1, 1),
    Sketcher.Constraint("Coincident", 1, 3, -1, 1),
    Sketcher.Constraint("Diameter", 0, 13.0),
    Sketcher.Constraint("Diameter", 1, 6.0),
])
pad3 = body.newObject("PartDesign::Pad", "Pad002")
pad3.Profile = sketch5
pad3.Length = 7

doc.recompute()
